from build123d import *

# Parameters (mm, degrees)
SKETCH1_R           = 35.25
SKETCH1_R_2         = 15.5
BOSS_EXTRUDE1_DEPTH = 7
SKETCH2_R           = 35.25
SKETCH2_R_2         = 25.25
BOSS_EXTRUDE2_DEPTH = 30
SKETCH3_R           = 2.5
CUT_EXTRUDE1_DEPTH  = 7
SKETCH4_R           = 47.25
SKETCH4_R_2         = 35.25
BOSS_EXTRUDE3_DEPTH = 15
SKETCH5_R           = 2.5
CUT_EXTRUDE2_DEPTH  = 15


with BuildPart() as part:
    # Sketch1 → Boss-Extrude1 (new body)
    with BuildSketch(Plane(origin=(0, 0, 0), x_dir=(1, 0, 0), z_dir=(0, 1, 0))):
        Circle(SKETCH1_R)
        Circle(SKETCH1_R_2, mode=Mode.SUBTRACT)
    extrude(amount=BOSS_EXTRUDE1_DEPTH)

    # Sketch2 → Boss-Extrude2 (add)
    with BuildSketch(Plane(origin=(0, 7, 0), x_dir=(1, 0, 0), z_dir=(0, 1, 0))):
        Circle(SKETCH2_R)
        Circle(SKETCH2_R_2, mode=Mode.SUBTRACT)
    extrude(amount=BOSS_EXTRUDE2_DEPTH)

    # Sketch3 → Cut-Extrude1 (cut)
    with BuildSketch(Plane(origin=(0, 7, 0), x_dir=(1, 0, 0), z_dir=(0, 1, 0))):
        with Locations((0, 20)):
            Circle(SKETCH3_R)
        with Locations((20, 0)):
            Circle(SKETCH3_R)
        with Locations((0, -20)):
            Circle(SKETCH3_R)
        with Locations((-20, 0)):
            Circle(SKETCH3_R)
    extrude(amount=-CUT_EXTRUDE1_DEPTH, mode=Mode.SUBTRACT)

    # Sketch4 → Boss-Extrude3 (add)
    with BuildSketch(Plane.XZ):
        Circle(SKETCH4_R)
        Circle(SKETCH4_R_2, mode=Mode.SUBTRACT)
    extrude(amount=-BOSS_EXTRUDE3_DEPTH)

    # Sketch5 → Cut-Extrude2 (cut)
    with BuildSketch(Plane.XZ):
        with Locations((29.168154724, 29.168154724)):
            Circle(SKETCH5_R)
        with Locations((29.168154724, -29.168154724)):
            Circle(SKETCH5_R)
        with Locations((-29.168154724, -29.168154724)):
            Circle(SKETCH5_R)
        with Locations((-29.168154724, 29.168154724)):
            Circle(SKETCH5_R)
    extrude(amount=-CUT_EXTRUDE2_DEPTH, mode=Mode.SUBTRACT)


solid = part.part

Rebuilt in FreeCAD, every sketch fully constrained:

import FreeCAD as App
import Part
import Sketcher
from FreeCAD import Vector

doc = App.newDocument("Part")
body = doc.addObject("PartDesign::Body", "Body")

# Sketch on XZ plane
sketch1 = doc.addObject("Sketcher::SketchObject", "Sketch")
body.addObject(sketch1)
sketch1.AttachmentSupport = (doc.XZ_Plane, [""])
sketch1.MapMode = "FlatFace"
sketch1.addGeometry(Part.Circle(Vector(0, 0, 0), Vector(0, 0, 1), 35), False)
sketch1.addGeometry(Part.Circle(Vector(0, 0, 0), Vector(0, 0, 1), 16), False)
sketch1.addConstraint(Sketcher.Constraint("Coincident", 0, 3, -1, 1))
sketch1.addConstraint(Sketcher.Constraint("Coincident", 1, 3, -1, 1))
sketch1.addConstraint(Sketcher.Constraint("Diameter", 1, 31.0))
sketch1.addConstraint(Sketcher.Constraint("Diameter", 0, 70.5))
pad1 = doc.addObject("PartDesign::Pad", "Pad")
body.addObject(pad1)
pad1.Profile = sketch1
pad1.Length = 7
pad1.Reversed = True

# Sketch on XZ plane
sketch2 = doc.addObject("Sketcher::SketchObject", "Sketch001")
body.addObject(sketch2)
sketch2.AttachmentSupport = (doc.XZ_Plane, [""])
sketch2.MapMode = "FlatFace"
sketch2.AttachmentOffset = App.Placement(Vector(0, 0, -7), App.Rotation())
sketch2.addGeometry(Part.Circle(Vector(0, 0, 0), Vector(0, 0, 1), 35), False)
sketch2.addGeometry(Part.Circle(Vector(0, 0, 0), Vector(0, 0, 1), 25), False)
sketch2.addConstraint(Sketcher.Constraint("Coincident", 0, 3, -1, 1))
sketch2.addConstraint(Sketcher.Constraint("Coincident", 1, 3, -1, 1))
sketch2.addConstraint(Sketcher.Constraint("Diameter", 0, 70.5))
sketch2.addConstraint(Sketcher.Constraint("Diameter", 1, 50.5))
pad2 = doc.addObject("PartDesign::Pad", "Pad001")
body.addObject(pad2)
pad2.Profile = sketch2
pad2.Length = 30
pad2.Reversed = True

# Sketch on XZ plane
sketch3 = doc.addObject("Sketcher::SketchObject", "Sketch002")
body.addObject(sketch3)
sketch3.AttachmentSupport = (doc.XZ_Plane, [""])
sketch3.MapMode = "FlatFace"
sketch3.AttachmentOffset = App.Placement(Vector(0, 0, -7), App.Rotation())
sketch3.addGeometry(Part.Circle(Vector(0, -20, 0), Vector(0, 0, 1), 2.5), False)
sketch3.addGeometry(Part.Circle(Vector(20, 0, 0), Vector(0, 0, 1), 2.5), False)
sketch3.addGeometry(Part.Circle(Vector(0, 20, 0), Vector(0, 0, 1), 2.5), False)
sketch3.addGeometry(Part.Circle(Vector(-20, 0, 0), Vector(0, 0, 1), 2.5), False)
sketch3.addConstraint(Sketcher.Constraint("Equal", 0, 1))
sketch3.addConstraint(Sketcher.Constraint("Equal", 1, 2))
sketch3.addConstraint(Sketcher.Constraint("Equal", 2, 3))
sketch3.addConstraint(Sketcher.Constraint("Symmetric", 0, 3, 2, 3, -1, 1))
sketch3.addConstraint(Sketcher.Constraint("Symmetric", 1, 3, 3, 3, -1, 1))
sketch3.addConstraint(Sketcher.Constraint("PointOnObject", 0, 3, -2))
sketch3.addConstraint(Sketcher.Constraint("PointOnObject", 1, 3, -1))
sketch3.addConstraint(Sketcher.Constraint("Diameter", 0, 5.0))
sketch3.addConstraint(Sketcher.Constraint("DistanceY", 0, 3, -1, 1, 20.0))
sketch3.addConstraint(Sketcher.Constraint("DistanceX", -1, 1, 1, 3, 20.0))
pocket1 = doc.addObject("PartDesign::Pocket", "Pocket")
body.addObject(pocket1)
pocket1.Profile = sketch3
pocket1.Length = 7
pocket1.Reversed = True

# Sketch on XZ plane
sketch4 = doc.addObject("Sketcher::SketchObject", "Sketch003")
body.addObject(sketch4)
sketch4.AttachmentSupport = (doc.XZ_Plane, [""])
sketch4.MapMode = "FlatFace"
sketch4.addGeometry(Part.Circle(Vector(0, 0, 0), Vector(0, 0, 1), 47), False)
sketch4.addGeometry(Part.Circle(Vector(0, 0, 0), Vector(0, 0, 1), 35), False)
sketch4.addConstraint(Sketcher.Constraint("Coincident", 0, 3, -1, 1))
sketch4.addConstraint(Sketcher.Constraint("Coincident", 1, 3, -1, 1))
sketch4.addConstraint(Sketcher.Constraint("Diameter", 0, 94.5))
sketch4.addConstraint(Sketcher.Constraint("Diameter", 1, 70.5))
pad3 = doc.addObject("PartDesign::Pad", "Pad002")
body.addObject(pad3)
pad3.Profile = sketch4
pad3.Length = 15
pad3.Reversed = True

# Sketch on XZ plane
sketch5 = doc.addObject("Sketcher::SketchObject", "Sketch004")
body.addObject(sketch5)
sketch5.AttachmentSupport = (doc.XZ_Plane, [""])
sketch5.MapMode = "FlatFace"
sketch5.addGeometry(Part.Circle(Vector(29.2, 29.2, 0), Vector(0, 0, 1), 2.5), False)
sketch5.addGeometry(Part.Circle(Vector(29.2, -29.2, 0), Vector(0, 0, 1), 2.5), False)
sketch5.addGeometry(Part.Circle(Vector(-29.2, -29.2, 0), Vector(0, 0, 1), 2.5), False)
sketch5.addGeometry(Part.Circle(Vector(-29.2, 29.2, 0), Vector(0, 0, 1), 2.5), False)
sketch5.addConstraint(Sketcher.Constraint("Equal", 0, 1))
sketch5.addConstraint(Sketcher.Constraint("Equal", 1, 2))
sketch5.addConstraint(Sketcher.Constraint("Equal", 2, 3))
sketch5.addConstraint(Sketcher.Constraint("Symmetric", 0, 3, 2, 3, -1, 1))
sketch5.addConstraint(Sketcher.Constraint("Symmetric", 1, 3, 3, 3, -1, 1))
sketch5.addConstraint(Sketcher.Constraint("Symmetric", 1, 3, 2, 3, -2))
sketch5.addConstraint(Sketcher.Constraint("Diameter", 0, 5.0))
sketch5.addConstraint(Sketcher.Constraint("DistanceY", 1, 3, 0, 3, 58.336309))
sketch5.addConstraint(Sketcher.Constraint("DistanceX", 2, 3, 1, 3, 58.336309))
pocket2 = doc.addObject("PartDesign::Pocket", "Pocket001")
body.addObject(pocket2)
pocket2.Profile = sketch5
pocket2.Length = 15

doc.recompute()
